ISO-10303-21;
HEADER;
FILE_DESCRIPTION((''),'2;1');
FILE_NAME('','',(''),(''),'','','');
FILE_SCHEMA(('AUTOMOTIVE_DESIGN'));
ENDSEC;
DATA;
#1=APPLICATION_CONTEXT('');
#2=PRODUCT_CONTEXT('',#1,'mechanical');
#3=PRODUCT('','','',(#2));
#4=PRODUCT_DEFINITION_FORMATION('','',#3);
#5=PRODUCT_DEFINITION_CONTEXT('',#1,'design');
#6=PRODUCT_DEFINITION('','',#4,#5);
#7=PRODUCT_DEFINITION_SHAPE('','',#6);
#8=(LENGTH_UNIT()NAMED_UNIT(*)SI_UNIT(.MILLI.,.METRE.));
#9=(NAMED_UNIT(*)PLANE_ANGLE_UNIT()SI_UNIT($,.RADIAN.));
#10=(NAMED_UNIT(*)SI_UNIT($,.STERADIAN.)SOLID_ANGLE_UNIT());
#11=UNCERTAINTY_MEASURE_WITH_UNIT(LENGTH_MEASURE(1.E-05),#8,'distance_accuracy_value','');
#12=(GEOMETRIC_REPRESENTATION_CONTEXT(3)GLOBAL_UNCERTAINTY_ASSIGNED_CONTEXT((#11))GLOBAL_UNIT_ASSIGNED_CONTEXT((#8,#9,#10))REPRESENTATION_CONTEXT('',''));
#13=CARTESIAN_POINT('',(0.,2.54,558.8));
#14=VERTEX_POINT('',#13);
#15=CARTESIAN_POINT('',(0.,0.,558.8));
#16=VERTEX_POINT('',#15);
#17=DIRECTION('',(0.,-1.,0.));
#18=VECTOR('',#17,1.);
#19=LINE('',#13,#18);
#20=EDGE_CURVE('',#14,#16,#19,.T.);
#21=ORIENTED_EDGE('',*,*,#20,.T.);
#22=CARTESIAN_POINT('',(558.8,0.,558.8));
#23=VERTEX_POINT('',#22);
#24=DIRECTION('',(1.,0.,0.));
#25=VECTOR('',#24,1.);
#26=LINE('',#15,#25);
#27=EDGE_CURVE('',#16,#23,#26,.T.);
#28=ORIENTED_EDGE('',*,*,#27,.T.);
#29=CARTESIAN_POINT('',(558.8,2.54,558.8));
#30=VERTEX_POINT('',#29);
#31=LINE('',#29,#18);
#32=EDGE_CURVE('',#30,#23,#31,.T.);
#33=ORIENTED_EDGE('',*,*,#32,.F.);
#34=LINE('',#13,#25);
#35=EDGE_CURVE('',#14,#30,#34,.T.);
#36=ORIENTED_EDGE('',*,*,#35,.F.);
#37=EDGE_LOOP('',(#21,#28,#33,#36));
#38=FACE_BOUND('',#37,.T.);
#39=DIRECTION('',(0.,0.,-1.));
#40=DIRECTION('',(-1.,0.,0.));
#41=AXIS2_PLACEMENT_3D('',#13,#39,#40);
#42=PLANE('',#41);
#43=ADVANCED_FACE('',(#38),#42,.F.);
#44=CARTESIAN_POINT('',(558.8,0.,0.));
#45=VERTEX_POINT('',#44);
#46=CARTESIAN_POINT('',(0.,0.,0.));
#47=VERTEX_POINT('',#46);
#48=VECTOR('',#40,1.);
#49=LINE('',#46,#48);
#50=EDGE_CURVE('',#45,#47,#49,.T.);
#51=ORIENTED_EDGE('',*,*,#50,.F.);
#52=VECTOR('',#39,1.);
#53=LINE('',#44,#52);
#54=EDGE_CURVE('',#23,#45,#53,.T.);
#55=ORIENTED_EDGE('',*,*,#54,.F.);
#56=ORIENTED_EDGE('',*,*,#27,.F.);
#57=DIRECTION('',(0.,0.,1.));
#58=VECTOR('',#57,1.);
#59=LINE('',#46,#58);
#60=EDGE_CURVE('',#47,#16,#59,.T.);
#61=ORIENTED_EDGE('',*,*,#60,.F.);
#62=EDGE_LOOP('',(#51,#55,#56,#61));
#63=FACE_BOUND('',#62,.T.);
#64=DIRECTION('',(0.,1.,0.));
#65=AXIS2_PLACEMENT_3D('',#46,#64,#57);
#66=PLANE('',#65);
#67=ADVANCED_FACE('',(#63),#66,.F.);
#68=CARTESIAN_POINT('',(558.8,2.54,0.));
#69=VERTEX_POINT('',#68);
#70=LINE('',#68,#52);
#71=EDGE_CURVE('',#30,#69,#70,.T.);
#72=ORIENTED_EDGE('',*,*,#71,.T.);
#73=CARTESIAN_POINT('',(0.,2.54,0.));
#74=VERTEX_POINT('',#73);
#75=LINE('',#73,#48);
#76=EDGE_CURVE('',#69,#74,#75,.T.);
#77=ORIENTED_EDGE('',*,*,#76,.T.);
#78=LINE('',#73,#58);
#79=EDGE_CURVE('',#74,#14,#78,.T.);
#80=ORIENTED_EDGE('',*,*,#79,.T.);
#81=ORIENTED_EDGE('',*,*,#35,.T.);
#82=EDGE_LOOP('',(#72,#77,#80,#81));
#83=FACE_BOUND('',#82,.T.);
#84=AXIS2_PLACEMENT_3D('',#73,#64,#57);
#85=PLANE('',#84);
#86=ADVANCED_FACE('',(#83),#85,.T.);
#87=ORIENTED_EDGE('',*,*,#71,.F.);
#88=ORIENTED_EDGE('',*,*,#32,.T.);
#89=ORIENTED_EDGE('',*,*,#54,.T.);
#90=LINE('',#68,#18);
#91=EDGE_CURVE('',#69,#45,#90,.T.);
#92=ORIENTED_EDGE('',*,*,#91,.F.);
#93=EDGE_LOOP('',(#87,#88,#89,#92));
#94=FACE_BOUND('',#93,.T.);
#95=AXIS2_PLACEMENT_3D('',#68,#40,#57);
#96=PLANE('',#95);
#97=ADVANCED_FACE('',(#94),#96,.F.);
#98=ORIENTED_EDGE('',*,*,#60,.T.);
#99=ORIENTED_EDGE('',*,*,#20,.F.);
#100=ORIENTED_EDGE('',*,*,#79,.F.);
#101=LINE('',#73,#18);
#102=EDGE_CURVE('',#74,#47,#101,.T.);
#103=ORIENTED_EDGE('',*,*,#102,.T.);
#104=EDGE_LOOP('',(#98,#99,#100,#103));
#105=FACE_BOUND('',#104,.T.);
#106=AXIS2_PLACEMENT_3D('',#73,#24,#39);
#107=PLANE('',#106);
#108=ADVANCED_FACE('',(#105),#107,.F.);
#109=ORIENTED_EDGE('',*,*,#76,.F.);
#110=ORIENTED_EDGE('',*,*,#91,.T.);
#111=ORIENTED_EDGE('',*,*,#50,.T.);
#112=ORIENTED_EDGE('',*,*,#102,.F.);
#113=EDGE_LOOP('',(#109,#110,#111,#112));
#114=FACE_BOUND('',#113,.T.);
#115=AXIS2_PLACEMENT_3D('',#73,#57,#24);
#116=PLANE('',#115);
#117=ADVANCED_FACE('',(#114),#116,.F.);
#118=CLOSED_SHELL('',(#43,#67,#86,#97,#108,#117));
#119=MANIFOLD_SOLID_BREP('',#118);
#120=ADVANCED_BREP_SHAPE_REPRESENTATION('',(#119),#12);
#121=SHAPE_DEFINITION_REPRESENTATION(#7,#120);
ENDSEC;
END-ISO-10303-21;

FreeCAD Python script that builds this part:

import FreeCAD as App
import Part
import Sketcher
Q = App.Units.Quantity

doc = App.newDocument("Part")
body = doc.addObject("PartDesign::Body", "Body")

sketch1 = doc.addObject("Sketcher::SketchObject", "Sketch")
body.addObject(sketch1)
sketch1.AttachmentSupport = (doc.XZ_Plane, [""])
sketch1.MapMode = "FlatFace"
sketch1.addGeometry([
    Part.LineSegment(App.Vector(0, 0, 0), App.Vector(0, 559, 0)),
    Part.LineSegment(App.Vector(0, 559, 0), App.Vector(559, 559, 0)),
    Part.LineSegment(App.Vector(559, 559, 0), App.Vector(559, 0, 0)),
    Part.LineSegment(App.Vector(559, 0, 0), App.Vector(0, 0, 0)),
], False)
sketch1.addConstraint([
    Sketcher.Constraint("Coincident", 0, 2, 1, 1),
    Sketcher.Constraint("Coincident", 1, 2, 2, 1),
    Sketcher.Constraint("Coincident", 2, 2, 3, 1),
    Sketcher.Constraint("Coincident", 3, 2, 0, 1),
    Sketcher.Constraint("Vertical", 0),
    Sketcher.Constraint("Horizontal", 1),
    Sketcher.Constraint("Vertical", 2),
    Sketcher.Constraint("Horizontal", 3),
    Sketcher.Constraint("Coincident", 3, 2, -1, 1),
    Sketcher.Constraint("Equal", 3, 0),
    Sketcher.Constraint("DistanceX", 1, 1, 1, 2, Q("22 in")),
])
pad1 = doc.addObject("PartDesign::Pad", "Pad")
body.addObject(pad1)
pad1.Profile = sketch1
pad1.Length = Q("0.1 in")
pad1.Reversed = True

doc.recompute()
